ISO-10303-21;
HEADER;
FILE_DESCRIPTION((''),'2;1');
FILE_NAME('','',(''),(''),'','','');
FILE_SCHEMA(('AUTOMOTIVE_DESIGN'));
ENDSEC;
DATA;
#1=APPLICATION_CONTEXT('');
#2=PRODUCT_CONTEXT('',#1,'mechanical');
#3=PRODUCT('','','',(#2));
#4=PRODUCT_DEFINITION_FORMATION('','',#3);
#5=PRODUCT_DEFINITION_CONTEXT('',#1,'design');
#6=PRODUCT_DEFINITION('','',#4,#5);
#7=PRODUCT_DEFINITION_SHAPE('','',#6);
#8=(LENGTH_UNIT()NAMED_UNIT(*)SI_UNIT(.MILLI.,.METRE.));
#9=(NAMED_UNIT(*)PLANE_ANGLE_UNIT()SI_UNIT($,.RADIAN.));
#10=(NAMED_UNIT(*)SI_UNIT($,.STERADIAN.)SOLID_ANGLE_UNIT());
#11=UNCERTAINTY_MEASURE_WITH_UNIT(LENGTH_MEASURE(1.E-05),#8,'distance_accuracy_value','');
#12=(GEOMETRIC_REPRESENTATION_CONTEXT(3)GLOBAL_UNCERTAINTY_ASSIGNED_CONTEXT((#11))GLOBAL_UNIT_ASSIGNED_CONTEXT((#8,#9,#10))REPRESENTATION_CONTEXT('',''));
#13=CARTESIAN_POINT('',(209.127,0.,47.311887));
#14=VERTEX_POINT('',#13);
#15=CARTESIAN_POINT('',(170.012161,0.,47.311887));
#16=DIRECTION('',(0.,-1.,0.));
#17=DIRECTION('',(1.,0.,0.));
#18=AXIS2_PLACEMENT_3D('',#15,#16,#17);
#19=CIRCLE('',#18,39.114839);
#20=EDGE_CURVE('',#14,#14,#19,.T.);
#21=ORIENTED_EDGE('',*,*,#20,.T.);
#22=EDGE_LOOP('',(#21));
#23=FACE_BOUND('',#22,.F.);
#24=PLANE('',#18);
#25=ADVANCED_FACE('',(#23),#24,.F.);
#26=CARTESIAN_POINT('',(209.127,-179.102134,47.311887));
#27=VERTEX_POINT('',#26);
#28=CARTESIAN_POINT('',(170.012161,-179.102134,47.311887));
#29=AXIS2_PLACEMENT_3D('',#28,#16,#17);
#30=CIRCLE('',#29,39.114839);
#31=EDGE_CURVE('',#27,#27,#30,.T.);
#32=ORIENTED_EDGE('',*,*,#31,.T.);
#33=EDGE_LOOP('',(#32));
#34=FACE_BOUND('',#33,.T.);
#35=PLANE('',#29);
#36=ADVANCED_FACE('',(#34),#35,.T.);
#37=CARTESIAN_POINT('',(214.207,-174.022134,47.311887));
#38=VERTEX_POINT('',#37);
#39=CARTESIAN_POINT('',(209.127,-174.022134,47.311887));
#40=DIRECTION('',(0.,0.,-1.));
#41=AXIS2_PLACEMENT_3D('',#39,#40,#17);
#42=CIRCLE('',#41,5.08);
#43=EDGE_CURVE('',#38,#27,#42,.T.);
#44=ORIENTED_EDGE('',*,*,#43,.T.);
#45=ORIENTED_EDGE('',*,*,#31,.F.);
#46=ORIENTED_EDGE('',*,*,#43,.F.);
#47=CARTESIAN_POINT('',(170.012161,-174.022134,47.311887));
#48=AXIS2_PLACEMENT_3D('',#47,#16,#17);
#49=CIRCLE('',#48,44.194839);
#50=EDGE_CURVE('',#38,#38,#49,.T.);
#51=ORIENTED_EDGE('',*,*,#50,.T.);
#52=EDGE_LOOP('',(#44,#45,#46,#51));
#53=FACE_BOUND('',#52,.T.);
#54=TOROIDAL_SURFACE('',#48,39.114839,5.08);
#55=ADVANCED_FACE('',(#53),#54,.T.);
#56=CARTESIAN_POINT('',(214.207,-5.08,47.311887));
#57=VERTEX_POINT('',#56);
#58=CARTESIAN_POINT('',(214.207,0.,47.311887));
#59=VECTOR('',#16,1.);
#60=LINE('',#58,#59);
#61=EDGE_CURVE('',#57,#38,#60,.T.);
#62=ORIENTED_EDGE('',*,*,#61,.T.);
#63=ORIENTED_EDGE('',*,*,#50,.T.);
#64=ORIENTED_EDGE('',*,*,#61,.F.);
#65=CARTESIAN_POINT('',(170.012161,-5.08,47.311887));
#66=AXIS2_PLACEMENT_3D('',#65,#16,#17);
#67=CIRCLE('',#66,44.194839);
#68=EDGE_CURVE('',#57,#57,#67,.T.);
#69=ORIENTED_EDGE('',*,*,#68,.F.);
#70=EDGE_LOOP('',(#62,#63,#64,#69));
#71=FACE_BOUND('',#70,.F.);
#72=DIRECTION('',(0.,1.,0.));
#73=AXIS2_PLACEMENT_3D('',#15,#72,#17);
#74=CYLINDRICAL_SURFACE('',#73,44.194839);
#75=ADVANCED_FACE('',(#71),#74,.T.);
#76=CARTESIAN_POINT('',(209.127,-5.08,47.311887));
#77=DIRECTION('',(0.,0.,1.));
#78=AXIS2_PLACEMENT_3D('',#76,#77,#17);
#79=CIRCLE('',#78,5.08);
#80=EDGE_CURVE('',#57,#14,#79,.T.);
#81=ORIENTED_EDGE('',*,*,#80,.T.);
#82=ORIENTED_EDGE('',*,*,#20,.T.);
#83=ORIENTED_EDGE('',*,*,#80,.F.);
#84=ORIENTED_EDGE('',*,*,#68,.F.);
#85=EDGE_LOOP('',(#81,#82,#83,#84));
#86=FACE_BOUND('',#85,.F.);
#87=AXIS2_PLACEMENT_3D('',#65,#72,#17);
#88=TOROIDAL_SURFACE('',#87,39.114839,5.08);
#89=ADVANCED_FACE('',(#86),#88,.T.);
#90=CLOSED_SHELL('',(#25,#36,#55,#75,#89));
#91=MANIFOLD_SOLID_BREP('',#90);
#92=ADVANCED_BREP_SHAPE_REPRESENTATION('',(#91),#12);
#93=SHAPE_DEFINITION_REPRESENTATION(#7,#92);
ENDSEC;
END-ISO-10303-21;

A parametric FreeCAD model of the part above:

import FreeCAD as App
import Part
import Sketcher

V = App.Vector
Q = App.Units.Quantity

doc = App.newDocument("Part")
body = doc.addObject("PartDesign::Body", "Body")

sketch1 = body.newObject("Sketcher::SketchObject", "Sketch")
sketch1.AttachmentSupport = (doc.getObject("XZ_Plane"), [""])
sketch1.MapMode = "FlatFace"
sketch1.addGeometry(Part.Circle(V(170, 47, 0), V(0, 0, 1), 44), False)
sketch1.addConstraint([
    Sketcher.Constraint("Diameter", 0, Q("88.389678 mm")),
    Sketcher.Constraint("DistanceX", -1, 1, 0, 3, Q("170.012161 mm")),
    Sketcher.Constraint("DistanceY", -1, 1, 0, 3, Q("47.311887 mm")),
])
pad1 = body.newObject("PartDesign::Pad", "Pad")
pad1.Profile = sketch1
pad1.Length = 179.102134
doc.recompute()

fillet = body.newObject("PartDesign::Fillet", "Fillet")
fillet.Base = (pad1, ["Edge1"])
fillet.UseAllEdges = True
fillet.Radius = Q("0.2 in")

doc.recompute()
